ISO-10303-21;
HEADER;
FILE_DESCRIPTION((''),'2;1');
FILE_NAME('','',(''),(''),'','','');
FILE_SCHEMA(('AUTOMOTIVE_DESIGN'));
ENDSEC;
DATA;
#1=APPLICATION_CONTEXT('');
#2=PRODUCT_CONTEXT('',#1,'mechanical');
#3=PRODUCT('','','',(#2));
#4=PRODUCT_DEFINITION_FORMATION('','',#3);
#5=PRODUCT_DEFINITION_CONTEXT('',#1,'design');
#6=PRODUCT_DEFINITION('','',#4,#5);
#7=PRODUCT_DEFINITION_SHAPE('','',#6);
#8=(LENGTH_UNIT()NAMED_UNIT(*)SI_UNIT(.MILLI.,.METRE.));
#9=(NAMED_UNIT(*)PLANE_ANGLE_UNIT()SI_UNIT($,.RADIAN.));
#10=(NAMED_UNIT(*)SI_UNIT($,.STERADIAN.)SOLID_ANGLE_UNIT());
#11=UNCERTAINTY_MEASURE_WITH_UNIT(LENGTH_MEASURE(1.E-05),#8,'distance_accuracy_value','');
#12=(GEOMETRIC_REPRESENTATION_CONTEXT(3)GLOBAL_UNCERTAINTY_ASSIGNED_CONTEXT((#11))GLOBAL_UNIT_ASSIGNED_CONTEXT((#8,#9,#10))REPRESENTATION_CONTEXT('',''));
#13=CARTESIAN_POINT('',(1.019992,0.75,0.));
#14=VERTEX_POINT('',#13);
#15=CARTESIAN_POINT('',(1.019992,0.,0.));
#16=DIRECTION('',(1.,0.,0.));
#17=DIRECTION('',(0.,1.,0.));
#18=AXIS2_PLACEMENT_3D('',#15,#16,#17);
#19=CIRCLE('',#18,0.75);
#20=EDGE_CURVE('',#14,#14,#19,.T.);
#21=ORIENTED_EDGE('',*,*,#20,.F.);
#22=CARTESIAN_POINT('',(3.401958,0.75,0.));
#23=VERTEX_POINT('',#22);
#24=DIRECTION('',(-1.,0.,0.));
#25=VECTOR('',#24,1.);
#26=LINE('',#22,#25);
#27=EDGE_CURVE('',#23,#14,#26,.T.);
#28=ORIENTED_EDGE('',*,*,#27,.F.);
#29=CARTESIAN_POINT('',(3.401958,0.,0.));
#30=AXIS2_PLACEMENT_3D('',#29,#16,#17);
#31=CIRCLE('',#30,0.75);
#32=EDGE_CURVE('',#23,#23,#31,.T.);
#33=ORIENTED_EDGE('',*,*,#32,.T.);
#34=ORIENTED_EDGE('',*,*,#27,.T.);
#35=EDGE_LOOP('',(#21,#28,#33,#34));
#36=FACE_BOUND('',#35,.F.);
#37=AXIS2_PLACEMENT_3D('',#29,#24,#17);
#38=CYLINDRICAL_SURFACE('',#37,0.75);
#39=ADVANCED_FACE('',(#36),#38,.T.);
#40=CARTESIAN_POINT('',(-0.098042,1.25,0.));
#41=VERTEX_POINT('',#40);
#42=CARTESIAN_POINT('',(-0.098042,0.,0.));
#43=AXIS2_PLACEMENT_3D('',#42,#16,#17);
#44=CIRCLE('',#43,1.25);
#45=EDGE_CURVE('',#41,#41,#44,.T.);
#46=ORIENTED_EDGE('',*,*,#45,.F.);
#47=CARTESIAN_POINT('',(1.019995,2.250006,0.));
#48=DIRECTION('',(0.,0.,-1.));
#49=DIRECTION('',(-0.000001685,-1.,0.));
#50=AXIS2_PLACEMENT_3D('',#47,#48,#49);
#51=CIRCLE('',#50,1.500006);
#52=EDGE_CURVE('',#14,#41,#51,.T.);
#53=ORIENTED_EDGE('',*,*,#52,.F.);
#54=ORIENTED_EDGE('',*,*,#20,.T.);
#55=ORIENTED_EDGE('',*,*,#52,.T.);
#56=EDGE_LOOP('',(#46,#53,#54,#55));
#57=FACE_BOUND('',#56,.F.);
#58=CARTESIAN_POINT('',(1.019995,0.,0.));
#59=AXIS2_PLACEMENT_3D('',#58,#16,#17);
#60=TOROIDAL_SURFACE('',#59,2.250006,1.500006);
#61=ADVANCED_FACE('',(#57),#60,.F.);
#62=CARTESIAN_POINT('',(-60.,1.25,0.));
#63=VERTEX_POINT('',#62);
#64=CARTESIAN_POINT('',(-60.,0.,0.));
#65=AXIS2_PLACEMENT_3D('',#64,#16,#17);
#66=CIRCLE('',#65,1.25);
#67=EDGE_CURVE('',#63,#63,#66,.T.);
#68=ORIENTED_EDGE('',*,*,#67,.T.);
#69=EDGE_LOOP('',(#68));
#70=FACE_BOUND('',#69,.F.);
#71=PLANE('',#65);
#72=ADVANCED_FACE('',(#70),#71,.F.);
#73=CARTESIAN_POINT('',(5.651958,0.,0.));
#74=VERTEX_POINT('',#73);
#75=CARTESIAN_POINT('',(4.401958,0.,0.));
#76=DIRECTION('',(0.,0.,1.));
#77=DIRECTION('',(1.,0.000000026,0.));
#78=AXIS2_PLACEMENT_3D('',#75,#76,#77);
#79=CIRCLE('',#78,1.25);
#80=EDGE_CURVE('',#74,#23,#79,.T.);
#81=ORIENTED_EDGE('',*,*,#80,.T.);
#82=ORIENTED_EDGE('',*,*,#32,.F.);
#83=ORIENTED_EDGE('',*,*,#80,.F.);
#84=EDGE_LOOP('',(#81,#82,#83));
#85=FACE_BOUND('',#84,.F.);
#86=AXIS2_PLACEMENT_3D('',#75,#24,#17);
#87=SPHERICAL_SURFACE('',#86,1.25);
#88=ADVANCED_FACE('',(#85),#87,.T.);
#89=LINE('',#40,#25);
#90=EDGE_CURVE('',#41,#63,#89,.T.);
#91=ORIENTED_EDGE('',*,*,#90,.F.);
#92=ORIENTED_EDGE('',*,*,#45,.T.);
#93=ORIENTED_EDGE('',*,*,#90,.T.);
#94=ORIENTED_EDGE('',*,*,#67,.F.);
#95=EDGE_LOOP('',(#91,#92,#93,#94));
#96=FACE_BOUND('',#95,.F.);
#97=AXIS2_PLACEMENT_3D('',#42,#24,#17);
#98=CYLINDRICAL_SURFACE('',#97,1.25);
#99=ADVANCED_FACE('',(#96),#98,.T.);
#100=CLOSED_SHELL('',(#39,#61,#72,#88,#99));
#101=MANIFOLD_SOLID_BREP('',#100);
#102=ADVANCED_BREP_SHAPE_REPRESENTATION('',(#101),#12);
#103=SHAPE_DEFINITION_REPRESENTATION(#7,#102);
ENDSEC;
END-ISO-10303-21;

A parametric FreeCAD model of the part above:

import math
import FreeCAD as App
import Part
import Sketcher
from FreeCAD import Vector
Q = App.Units.Quantity

doc = App.newDocument("Part")
body = doc.addObject("PartDesign::Body", "Body")

sketch1 = doc.addObject("Sketcher::SketchObject", "Sketch")
body.addObject(sketch1)
sketch1.AttachmentSupport = (doc.XY_Plane, [""])
sketch1.MapMode = "FlatFace"
sketch1.addGeometry(Part.LineSegment(Vector(-0.1, 1.2, 0), Vector(-60, 1.2, 0)), False)
sketch1.addGeometry(Part.LineSegment(Vector(-60, 1.2, 0), Vector(-60, 0, 0)), False)
sketch1.addGeometry(Part.LineSegment(Vector(-60, 0, 0), Vector(5.7, 0, 0)), False)
sketch1.addGeometry(Part.ArcOfCircle(Part.Circle(Vector(4.4, 0, 0), Vector(0, 0, 1), 1.3), math.radians(0), math.radians(143)), False)
sketch1.addGeometry(Part.LineSegment(Vector(3.4, 0.8, 0), Vector(1, 0.8, 0)), False)
sketch1.addGeometry(Part.ArcOfCircle(Part.Circle(Vector(1, 2.3, 0), Vector(0, 0, 1), 1.5), math.radians(-138), math.radians(-90)), False)
sketch1.addConstraint(Sketcher.Constraint("Coincident", 0, 2, 1, 1))
sketch1.addConstraint(Sketcher.Constraint("Coincident", 1, 2, 2, 1))
sketch1.addConstraint(Sketcher.Constraint("Coincident", 2, 2, 3, 1))
sketch1.addConstraint(Sketcher.Constraint("Coincident", 3, 2, 4, 1))
sketch1.addConstraint(Sketcher.Constraint("Tangent", 4, 2, 5, 2))
sketch1.addConstraint(Sketcher.Constraint("Coincident", 5, 1, 0, 1))
sketch1.addConstraint(Sketcher.Constraint("Horizontal", 0))
sketch1.addConstraint(Sketcher.Constraint("Vertical", 1))
sketch1.addConstraint(Sketcher.Constraint("Horizontal", 2))
sketch1.addConstraint(Sketcher.Constraint("Horizontal", 4))
sketch1.addConstraint(Sketcher.Constraint("PointOnObject", 3, 3, -1))
sketch1.addConstraint(Sketcher.Constraint("PointOnObject", 1, 2, -1))
sketch1.addConstraint(Sketcher.Constraint("Radius", 3, Q("1.25 mm")))
sketch1.addConstraint(Sketcher.Constraint("DistanceX", 0, 2, -1, 1, Q("60 mm")))
sketch1.addConstraint(Sketcher.Constraint("DistanceX", 3, 2, 3, 3, Q("1 mm")))
sketch1.addConstraint(Sketcher.Constraint("DistanceY", 1, 2, 1, 1, Q("1.25 mm")))
sketch1.addConstraint(Sketcher.Constraint("DistanceX", 5, 1, 3, 2, Q("3.5 mm")))
sketch1.addConstraint(Sketcher.Constraint("Radius", 5, Q("1.500006 mm")))
sketch1.addConstraint(Sketcher.Constraint("DistanceX", 0, 2, 0, 1, Q("59.901958 mm")))
revolution = doc.addObject("PartDesign::Revolution", "Revolution")
body.addObject(revolution)
revolution.Profile = sketch1
revolution.ReferenceAxis = (sketch1, ["H_Axis"])
revolution.Angle = 360

doc.recompute()
